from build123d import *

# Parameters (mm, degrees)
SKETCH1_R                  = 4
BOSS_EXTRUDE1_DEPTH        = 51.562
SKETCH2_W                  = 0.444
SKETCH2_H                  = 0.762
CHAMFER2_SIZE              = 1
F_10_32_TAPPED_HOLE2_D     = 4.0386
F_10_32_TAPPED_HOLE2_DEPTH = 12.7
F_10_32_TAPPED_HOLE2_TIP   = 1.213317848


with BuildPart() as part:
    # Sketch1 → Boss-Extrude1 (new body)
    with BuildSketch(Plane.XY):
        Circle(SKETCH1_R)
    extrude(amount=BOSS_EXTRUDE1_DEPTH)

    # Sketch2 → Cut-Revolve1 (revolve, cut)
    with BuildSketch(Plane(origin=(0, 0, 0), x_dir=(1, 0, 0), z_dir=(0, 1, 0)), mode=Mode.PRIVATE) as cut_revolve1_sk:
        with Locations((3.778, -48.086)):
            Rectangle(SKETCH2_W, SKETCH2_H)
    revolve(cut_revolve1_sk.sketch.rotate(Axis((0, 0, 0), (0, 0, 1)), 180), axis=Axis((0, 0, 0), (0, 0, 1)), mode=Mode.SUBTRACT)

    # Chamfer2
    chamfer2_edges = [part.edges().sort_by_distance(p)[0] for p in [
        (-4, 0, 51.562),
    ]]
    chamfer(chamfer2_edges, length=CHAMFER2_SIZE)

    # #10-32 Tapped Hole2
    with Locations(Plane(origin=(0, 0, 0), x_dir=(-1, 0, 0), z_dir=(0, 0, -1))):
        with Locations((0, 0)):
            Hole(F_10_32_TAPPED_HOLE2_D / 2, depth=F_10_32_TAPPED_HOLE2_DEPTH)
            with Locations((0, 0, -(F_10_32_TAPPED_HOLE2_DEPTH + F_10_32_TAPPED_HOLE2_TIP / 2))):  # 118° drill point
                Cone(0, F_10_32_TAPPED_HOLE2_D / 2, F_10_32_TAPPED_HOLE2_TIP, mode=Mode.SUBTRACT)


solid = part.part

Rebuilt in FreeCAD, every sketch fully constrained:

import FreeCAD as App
import Part
import Sketcher
from FreeCAD import Vector
Q = App.Units.Quantity


def edges_at(feature, points):
    """Names of the edges that pass closest to the given points."""
    edges = feature.Shape.Edges
    near = lambda p: min(range(len(edges)), key=lambda i: edges[i].distToShape(Part.Vertex(*p))[0])
    return sorted({f"Edge{near(p) + 1}" for p in points})

doc = App.newDocument("Part")
body = doc.addObject("PartDesign::Body", "Body")

# Sketch on XY plane
sketch1 = body.newObject("Sketcher::SketchObject", "Sketch")
sketch1.AttachmentSupport = (doc.getObject("XY_Plane"), [""])
sketch1.MapMode = "FlatFace"
sketch1.addGeometry(Part.Circle(Vector(0, 0, 0), Vector(0, 0, 1), 4), False)
sketch1.addConstraint(Sketcher.Constraint("Coincident", 0, 3, -1, 1))
sketch1.addConstraint(Sketcher.Constraint("Diameter", 0, Q("8 mm")))
pad1 = body.newObject("PartDesign::Pad", "Pad")
pad1.Profile = sketch1
pad1.Length = Q("2.03 in")

# Sketch on XZ plane
sketch2 = body.newObject("Sketcher::SketchObject", "Sketch001")
sketch2.AttachmentSupport = (doc.getObject("XZ_Plane"), [""])
sketch2.MapMode = "FlatFace"
sketch2.addGeometry(Part.LineSegment(Vector(3.56, 47.7, 0), Vector(3.56, 48.47, 0)), False)
sketch2.addGeometry(Part.LineSegment(Vector(3.56, 48.47, 0), Vector(4, 48.47, 0)), False)
sketch2.addGeometry(Part.LineSegment(Vector(4, 48.47, 0), Vector(4, 47.7, 0)), False)
sketch2.addGeometry(Part.LineSegment(Vector(4, 47.7, 0), Vector(3.56, 47.7, 0)), False)
sketch2.addConstraint(Sketcher.Constraint("Coincident", 0, 2, 1, 1))
sketch2.addConstraint(Sketcher.Constraint("Coincident", 1, 2, 2, 1))
sketch2.addConstraint(Sketcher.Constraint("Coincident", 2, 2, 3, 1))
sketch2.addConstraint(Sketcher.Constraint("Coincident", 3, 2, 0, 1))
sketch2.addConstraint(Sketcher.Constraint("Vertical", 0))
sketch2.addConstraint(Sketcher.Constraint("Horizontal", 1))
sketch2.addConstraint(Sketcher.Constraint("Vertical", 2))
sketch2.addConstraint(Sketcher.Constraint("Horizontal", 3))
sketch2.addConstraint(Sketcher.Constraint("DistanceY", 0, 1, 0, 2, Q("0.03 in")))
sketch2.addConstraint(Sketcher.Constraint("DistanceX", -1, 1, 0, 2, Q("0.14 in")))
sketch2.addConstraint(Sketcher.Constraint("DistanceX", 1, 1, 1, 2, Q("0.444 mm")))
sketch2.addConstraint(Sketcher.Constraint("DistanceY", -1, 1, 0, 2, Q("48.467 mm")))
groove = body.newObject("PartDesign::Groove", "Groove")
groove.Profile = sketch2
groove.ReferenceAxis = (sketch2, ["V_Axis"])
groove.Angle = 360
doc.recompute()

chamfer = body.newObject("PartDesign::Chamfer", "Chamfer")
chamfer.Base = (groove, edges_at(groove, [(-4, 0, 51.562)]))
chamfer.Size = 1

# Sketch on XY plane
sketch3 = body.newObject("Sketcher::SketchObject", "Sketch002")
sketch3.AttachmentSupport = (doc.getObject("XY_Plane"), [""])
sketch3.MapMode = "FlatFace"
sketch3.addGeometry(Part.Circle(Vector(0, 0, 0), Vector(0, 0, 1), 2), False)
sketch3.addConstraint(Sketcher.Constraint("Coincident", 0, 3, -1, 1))
sketch3.addConstraint(Sketcher.Constraint("Diameter", 0, Q("0.159 in")))
doc.recompute()
hole = body.newObject("PartDesign::Hole", "Hole")
hole.Profile = sketch3
hole.ThreadType = "None"
hole.Diameter = Q("0.159 in")
hole.DepthType = "Dimension"
hole.Depth = Q("0.5 in")
hole.DrillPoint = "Angled"
hole.DrillPointAngle = 118
hole.Reversed = True

doc.recompute()
